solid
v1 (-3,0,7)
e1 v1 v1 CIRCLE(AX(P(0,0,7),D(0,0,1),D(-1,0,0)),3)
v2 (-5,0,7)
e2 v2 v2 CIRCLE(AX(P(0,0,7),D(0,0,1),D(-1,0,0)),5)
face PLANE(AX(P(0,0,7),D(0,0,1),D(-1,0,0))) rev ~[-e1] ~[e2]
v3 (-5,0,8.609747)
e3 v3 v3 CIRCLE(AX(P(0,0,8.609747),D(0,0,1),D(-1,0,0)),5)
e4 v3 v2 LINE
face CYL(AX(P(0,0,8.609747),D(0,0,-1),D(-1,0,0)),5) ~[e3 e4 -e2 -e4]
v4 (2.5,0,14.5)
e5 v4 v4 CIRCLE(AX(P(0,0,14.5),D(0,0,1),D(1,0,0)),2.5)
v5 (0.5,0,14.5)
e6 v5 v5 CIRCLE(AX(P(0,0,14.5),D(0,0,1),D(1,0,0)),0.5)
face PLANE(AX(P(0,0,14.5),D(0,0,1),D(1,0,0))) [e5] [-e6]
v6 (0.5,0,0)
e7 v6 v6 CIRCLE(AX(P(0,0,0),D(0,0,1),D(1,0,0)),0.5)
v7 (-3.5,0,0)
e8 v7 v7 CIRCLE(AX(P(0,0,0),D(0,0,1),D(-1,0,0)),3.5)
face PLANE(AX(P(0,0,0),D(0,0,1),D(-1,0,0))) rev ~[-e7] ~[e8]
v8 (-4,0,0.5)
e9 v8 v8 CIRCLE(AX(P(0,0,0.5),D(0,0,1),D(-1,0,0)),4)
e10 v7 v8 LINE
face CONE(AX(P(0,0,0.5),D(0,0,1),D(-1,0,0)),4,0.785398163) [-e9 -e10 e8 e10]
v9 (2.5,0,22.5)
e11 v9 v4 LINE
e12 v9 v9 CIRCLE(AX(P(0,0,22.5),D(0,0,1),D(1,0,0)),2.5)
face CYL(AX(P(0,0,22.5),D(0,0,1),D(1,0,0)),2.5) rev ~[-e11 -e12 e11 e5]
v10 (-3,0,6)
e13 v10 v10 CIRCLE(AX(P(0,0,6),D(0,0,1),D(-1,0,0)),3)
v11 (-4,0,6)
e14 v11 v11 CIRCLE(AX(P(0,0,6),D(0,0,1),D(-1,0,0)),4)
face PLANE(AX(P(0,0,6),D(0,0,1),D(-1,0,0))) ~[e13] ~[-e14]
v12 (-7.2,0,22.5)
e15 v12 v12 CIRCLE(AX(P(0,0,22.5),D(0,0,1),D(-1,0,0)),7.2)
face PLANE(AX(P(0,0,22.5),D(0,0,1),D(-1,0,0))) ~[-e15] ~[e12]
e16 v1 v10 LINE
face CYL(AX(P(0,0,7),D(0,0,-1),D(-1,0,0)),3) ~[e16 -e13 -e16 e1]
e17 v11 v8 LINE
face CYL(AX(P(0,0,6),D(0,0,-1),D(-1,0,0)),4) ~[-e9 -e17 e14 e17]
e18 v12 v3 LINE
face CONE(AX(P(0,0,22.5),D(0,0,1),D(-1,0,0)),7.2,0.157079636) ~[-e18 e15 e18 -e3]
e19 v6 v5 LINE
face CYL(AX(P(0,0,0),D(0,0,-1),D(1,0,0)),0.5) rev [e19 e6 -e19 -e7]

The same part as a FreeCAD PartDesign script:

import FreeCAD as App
import Part
import Sketcher

V = App.Vector
Q = App.Units.Quantity


def edges_at(feature, points):
    """Names of the edges that pass closest to the given points."""
    edges = feature.Shape.Edges
    near = lambda p: min(range(len(edges)), key=lambda i: edges[i].distToShape(Part.Vertex(*p))[0])
    return sorted({f"Edge{near(p) + 1}" for p in points})


def add_polygon(sketch, points):
    """Adds a closed chain of lines whose ends are joined by coincident constraints."""
    first, n = sketch.GeometryCount, len(points)
    for a, b in zip(points, points[1:] + points[:1]):
        sketch.addGeometry(Part.LineSegment(App.Vector(*a, 0), App.Vector(*b, 0)), False)
    for i in range(n):
        sketch.addConstraint(Sketcher.Constraint("Coincident", first + i, 2, first + (i + 1) % n, 1))

doc = App.newDocument("Part")
params = doc.addObject("Spreadsheet::Sheet", "Params")
for row, (alias, value) in enumerate([
    ("sketch1_width", "2 mm"),
    ("sketch1_width2", "1 mm"),
    ("sketch1_width3", "4 mm"),
    ("sketch1_height", "6 mm"),
    ("sketch1_width4", "7.2 mm"),
    ("revolution_angle", "360 deg"),
    ("sketch2_diameter", "1 mm"),
    ("pocket1_length", "25 mm"),
    ("sketch3_diameter", "5 mm"),
    ("sketch3_diameter2", "1 mm"),
    ("pocket2_length", "8 mm"),
    ("chamfer_size", "0.5 mm"),
], start=1):
    params.set(f"A{row}", alias)
    params.set(f"B{row}", "=" + value)
    params.setAlias(f"B{row}", alias)

body = doc.addObject("PartDesign::Body", "Body")

sketch1 = body.newObject("Sketcher::SketchObject", "Sketch")
sketch1.AttachmentSupport = (doc.getObject("XZ_Plane"), [""])
sketch1.MapMode = "FlatFace"
add_polygon(sketch1, [(0, 0), (0, 22.5), (-7.2, 22.5), (-5, 8.609747), (-5, 7), (-3, 7), (-3, 6), (-4, 6), (-4, 0)])
sketch1.addConstraint(Sketcher.Constraint("Vertical", 0))
sketch1.addConstraint(Sketcher.Constraint("Horizontal", 1))
sketch1.addConstraint(Sketcher.Constraint("Vertical", 3))
sketch1.addConstraint(Sketcher.Constraint("Horizontal", 4))
sketch1.addConstraint(Sketcher.Constraint("Vertical", 5))
sketch1.addConstraint(Sketcher.Constraint("Horizontal", 6))
sketch1.addConstraint(Sketcher.Constraint("Vertical", 7))
sketch1.addConstraint(Sketcher.Constraint("Horizontal", 8))
sketch1.addConstraint(Sketcher.Constraint("Coincident", 8, 2, -1, 1))
sketch1.addConstraint(Sketcher.Constraint("Equal", 6, 5))
sketch1.addConstraint(Sketcher.Constraint("DistanceX", 4, 1, 4, 2, Q("2 mm")))
sketch1.addConstraint(Sketcher.Constraint("DistanceX", 6, 2, 6, 1, Q("1 mm")))
sketch1.addConstraint(Sketcher.Constraint("DistanceX", 8, 1, 8, 2, Q("4 mm")))
sketch1.addConstraint(Sketcher.Constraint("DistanceY", 7, 2, 7, 1, Q("6 mm")))
sketch1.addConstraint(Sketcher.Constraint("Angle", 2, Q("-81 deg")))
sketch1.addConstraint(Sketcher.Constraint("DistanceX", 1, 2, 1, 1, Q("7.2 mm")))
sketch1.addConstraint(Sketcher.Constraint("DistanceY", 0, 1, 0, 2, Q("22.5 mm")))
sketch1.setExpression("Constraints[19]", "Params.sketch1_width")
sketch1.setExpression("Constraints[20]", "Params.sketch1_width2")
sketch1.setExpression("Constraints[21]", "Params.sketch1_width3")
sketch1.setExpression("Constraints[22]", "Params.sketch1_height")
sketch1.setExpression("Constraints[24]", "Params.sketch1_width4")
revolution = body.newObject("PartDesign::Revolution", "Revolution")
revolution.Profile = sketch1
revolution.ReferenceAxis = (sketch1, ["V_Axis"])
revolution.setExpression("Angle", "Params.revolution_angle")

sketch2 = body.newObject("Sketcher::SketchObject", "Sketch001")
sketch2.AttachmentSupport = (doc.getObject("XY_Plane"), [""])
sketch2.MapMode = "FlatFace"
sketch2.addGeometry(Part.Circle(V(0, 0, 0), V(0, 0, 1), 0.5), False)
sketch2.addConstraint(Sketcher.Constraint("Coincident", 0, 3, -1, 1))
sketch2.addConstraint(Sketcher.Constraint("Diameter", 0, Q("1 mm")))
sketch2.setExpression("Constraints[1]", "Params.sketch2_diameter")
pocket1 = body.newObject("PartDesign::Pocket", "Pocket")
pocket1.Profile = sketch2
pocket1.setExpression("Length", "Params.pocket1_length")
pocket1.Reversed = True

sketch3 = body.newObject("Sketcher::SketchObject", "Sketch002")
sketch3.AttachmentSupport = (doc.getObject("XY_Plane"), [""])
sketch3.MapMode = "FlatFace"
sketch3.AttachmentOffset = App.Placement(V(0, 0, 22.5), App.Rotation())
sketch3.addGeometry(Part.Circle(V(0, 0, 0), V(0, 0, 1), 2.5), False)
sketch3.addGeometry(Part.Circle(V(0, 0, 0), V(0, 0, 1), 0.5), False)
sketch3.addConstraint(Sketcher.Constraint("Coincident", 0, 3, -1, 1))
sketch3.addConstraint(Sketcher.Constraint("Coincident", 1, 3, -1, 1))
sketch3.addConstraint(Sketcher.Constraint("Diameter", 0, Q("5 mm")))
sketch3.addConstraint(Sketcher.Constraint("Diameter", 1, Q("1 mm")))
sketch3.setExpression("Constraints[2]", "Params.sketch3_diameter")
sketch3.setExpression("Constraints[3]", "Params.sketch3_diameter2")
pocket2 = body.newObject("PartDesign::Pocket", "Pocket001")
pocket2.Profile = sketch3
pocket2.setExpression("Length", "Params.pocket2_length")
doc.recompute()

chamfer = body.newObject("PartDesign::Chamfer", "Chamfer")
chamfer.Base = (pocket2, edges_at(pocket2, [(4, 0, 0)]))
chamfer.setExpression("Size", "Params.chamfer_size")

doc.recompute()
